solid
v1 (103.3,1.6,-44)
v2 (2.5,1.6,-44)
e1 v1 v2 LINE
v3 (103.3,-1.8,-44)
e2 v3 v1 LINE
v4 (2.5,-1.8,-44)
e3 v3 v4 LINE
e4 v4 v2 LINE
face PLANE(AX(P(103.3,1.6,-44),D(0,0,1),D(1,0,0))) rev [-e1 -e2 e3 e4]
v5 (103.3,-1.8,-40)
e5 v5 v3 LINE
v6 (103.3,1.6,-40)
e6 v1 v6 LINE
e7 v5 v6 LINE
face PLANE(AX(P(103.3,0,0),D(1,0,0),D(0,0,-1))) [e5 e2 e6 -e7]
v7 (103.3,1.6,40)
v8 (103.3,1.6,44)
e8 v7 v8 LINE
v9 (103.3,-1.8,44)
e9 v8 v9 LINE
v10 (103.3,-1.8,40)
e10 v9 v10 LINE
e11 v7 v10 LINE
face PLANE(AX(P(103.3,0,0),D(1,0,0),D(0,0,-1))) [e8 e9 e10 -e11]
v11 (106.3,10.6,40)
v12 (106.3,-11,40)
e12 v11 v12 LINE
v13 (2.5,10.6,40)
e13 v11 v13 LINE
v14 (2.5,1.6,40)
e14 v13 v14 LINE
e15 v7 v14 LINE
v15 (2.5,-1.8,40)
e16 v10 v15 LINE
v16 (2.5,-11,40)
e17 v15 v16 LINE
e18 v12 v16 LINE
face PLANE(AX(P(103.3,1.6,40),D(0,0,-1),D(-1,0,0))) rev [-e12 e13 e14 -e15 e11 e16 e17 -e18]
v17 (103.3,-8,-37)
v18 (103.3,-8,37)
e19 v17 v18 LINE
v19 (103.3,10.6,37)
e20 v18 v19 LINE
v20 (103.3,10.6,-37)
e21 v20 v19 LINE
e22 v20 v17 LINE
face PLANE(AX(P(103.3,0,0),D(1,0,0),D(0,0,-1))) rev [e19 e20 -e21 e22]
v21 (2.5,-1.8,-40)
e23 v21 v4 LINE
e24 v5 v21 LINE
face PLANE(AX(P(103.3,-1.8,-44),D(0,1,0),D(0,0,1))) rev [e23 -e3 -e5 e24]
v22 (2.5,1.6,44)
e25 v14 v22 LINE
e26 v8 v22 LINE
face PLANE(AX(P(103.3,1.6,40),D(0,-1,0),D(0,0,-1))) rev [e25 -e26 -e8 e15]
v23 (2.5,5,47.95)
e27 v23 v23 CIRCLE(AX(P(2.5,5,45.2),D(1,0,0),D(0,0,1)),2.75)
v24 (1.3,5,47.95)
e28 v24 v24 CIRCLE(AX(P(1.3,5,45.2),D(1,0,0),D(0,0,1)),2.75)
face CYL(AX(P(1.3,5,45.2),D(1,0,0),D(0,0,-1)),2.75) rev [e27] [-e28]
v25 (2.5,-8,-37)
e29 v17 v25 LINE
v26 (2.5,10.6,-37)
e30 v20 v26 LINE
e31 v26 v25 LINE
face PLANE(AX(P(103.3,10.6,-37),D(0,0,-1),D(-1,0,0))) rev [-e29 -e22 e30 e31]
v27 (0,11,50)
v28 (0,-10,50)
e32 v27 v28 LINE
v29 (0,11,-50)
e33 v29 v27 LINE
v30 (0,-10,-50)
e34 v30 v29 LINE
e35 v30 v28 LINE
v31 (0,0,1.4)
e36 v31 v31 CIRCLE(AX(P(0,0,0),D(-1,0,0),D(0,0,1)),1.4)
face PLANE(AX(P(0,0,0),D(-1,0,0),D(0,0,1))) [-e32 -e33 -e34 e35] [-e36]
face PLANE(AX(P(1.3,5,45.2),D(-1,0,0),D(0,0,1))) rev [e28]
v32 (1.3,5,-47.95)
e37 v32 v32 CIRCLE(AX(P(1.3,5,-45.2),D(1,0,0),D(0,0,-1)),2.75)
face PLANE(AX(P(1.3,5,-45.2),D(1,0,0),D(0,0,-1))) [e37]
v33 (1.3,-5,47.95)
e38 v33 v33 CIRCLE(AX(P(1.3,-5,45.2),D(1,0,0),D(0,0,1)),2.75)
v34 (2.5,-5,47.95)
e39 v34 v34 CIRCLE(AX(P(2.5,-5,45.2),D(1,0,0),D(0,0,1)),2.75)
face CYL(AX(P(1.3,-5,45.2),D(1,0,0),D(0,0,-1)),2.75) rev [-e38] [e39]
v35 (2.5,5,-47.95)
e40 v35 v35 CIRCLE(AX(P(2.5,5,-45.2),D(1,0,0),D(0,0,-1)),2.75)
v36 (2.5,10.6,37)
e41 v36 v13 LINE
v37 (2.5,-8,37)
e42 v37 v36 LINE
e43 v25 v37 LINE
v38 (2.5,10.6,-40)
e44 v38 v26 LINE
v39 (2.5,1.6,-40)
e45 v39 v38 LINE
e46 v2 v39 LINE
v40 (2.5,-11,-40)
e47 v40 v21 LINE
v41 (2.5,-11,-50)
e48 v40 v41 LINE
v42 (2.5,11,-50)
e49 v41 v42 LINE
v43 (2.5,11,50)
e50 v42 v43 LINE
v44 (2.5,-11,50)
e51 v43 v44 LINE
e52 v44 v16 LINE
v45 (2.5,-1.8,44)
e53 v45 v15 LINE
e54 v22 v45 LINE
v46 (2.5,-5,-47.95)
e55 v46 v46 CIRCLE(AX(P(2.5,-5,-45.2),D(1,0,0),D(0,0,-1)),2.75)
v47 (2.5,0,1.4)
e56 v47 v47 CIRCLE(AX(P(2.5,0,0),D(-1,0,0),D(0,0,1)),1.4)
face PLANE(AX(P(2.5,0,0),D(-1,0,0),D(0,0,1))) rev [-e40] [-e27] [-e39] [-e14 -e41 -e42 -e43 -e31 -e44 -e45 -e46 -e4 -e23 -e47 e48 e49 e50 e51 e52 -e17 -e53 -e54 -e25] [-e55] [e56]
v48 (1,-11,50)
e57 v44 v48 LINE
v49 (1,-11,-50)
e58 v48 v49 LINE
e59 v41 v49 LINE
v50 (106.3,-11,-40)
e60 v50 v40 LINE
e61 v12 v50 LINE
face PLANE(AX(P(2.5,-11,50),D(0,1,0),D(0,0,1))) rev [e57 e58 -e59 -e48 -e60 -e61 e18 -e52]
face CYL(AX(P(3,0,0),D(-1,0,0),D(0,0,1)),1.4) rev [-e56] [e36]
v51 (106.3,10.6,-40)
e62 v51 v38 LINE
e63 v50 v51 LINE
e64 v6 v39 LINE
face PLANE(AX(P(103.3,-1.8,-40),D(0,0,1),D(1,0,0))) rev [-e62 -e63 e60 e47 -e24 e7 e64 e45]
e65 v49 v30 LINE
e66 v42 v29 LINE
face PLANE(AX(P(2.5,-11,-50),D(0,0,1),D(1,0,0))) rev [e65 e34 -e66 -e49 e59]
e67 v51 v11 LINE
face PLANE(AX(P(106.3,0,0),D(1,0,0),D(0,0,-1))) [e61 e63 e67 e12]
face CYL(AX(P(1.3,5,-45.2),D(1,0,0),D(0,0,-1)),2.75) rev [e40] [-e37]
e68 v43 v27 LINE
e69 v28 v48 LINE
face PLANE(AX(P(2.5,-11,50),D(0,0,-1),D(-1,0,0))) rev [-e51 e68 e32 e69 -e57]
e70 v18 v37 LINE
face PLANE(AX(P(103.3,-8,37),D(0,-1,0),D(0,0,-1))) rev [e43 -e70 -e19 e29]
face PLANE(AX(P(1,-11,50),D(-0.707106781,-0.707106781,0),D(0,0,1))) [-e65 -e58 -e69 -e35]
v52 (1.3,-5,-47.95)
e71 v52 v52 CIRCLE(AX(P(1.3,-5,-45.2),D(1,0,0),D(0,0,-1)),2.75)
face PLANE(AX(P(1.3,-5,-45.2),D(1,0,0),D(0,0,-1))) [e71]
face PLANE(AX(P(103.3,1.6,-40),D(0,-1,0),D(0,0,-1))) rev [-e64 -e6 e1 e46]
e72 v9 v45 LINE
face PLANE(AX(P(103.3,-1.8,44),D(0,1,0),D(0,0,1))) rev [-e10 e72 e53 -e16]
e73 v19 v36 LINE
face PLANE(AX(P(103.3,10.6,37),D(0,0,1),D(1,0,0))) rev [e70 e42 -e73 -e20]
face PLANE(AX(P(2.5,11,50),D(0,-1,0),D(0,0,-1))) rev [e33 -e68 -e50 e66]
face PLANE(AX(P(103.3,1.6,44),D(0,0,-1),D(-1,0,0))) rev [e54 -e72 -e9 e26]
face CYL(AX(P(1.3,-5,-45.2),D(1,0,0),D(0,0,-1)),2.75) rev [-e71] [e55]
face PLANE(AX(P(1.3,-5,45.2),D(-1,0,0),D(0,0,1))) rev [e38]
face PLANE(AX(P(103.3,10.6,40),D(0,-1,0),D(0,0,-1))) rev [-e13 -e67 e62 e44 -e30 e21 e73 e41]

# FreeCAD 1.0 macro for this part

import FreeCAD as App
import Part
import Sketcher
Q = App.Units.Quantity


def edges_at(feature, points):
    """Names of the edges that pass closest to the given points."""
    edges = feature.Shape.Edges
    near = lambda p: min(range(len(edges)), key=lambda i: edges[i].distToShape(Part.Vertex(*p))[0])
    return sorted({f"Edge{near(p) + 1}" for p in points})


def add_polygon(sketch, points):
    """Adds a closed chain of lines whose ends are joined by coincident constraints."""
    first, n = sketch.GeometryCount, len(points)
    for a, b in zip(points, points[1:] + points[:1]):
        sketch.addGeometry(Part.LineSegment(App.Vector(*a, 0), App.Vector(*b, 0)), False)
    for i in range(n):
        sketch.addConstraint(Sketcher.Constraint("Coincident", first + i, 2, first + (i + 1) % n, 1))

doc = App.newDocument("Part")
body = doc.addObject("PartDesign::Body", "Body")

sketch1 = body.newObject("Sketcher::SketchObject", "Sketch")
sketch1.AttachmentSupport = (doc.getObject("YZ_Plane"), [""])
sketch1.MapMode = "FlatFace"
add_polygon(sketch1, [(11, 50), (-11, 50), (-11, -50), (11, -50)])
sketch1.addConstraint([
    Sketcher.Constraint("Horizontal", 0),
    Sketcher.Constraint("Vertical", 1),
    Sketcher.Constraint("Horizontal", 2),
    Sketcher.Constraint("Vertical", 3),
    Sketcher.Constraint("Symmetric", 0, 2, 2, 2, -1, 1),
    Sketcher.Constraint("DistanceX", 0, 2, 0, 1, Q("22 mm")),
    Sketcher.Constraint("DistanceY", 1, 2, 1, 1, Q("100 mm")),
])
pad1 = body.newObject("PartDesign::Pad", "Pad")
pad1.Profile = sketch1
pad1.Length = 2.5

sketch2 = body.newObject("Sketcher::SketchObject", "Sketch001")
sketch2.AttachmentSupport = (doc.getObject("YZ_Plane"), [""])
sketch2.MapMode = "FlatFace"
sketch2.AttachmentOffset = App.Placement(App.Vector(0, 0, 2.5), App.Rotation())
sketch2.addGeometry([
    Part.Circle(App.Vector(5, -45.2, 0), App.Vector(0, 0, 1), 2.75),
    Part.Circle(App.Vector(-5, -45.2, 0), App.Vector(0, 0, 1), 2.75),
    Part.Circle(App.Vector(5, 45.2, 0), App.Vector(0, 0, 1), 2.75),
    Part.Circle(App.Vector(-5, 45.2, 0), App.Vector(0, 0, 1), 2.75),
], False)
sketch2.addConstraint([
    Sketcher.Constraint("Equal", 0, 1),
    Sketcher.Constraint("Equal", 1, 2),
    Sketcher.Constraint("Equal", 2, 3),
    Sketcher.Constraint("Symmetric", 1, 3, 2, 3, -1, 1),
    Sketcher.Constraint("Symmetric", 0, 3, 3, 3, -1, 1),
    Sketcher.Constraint("Symmetric", 0, 3, 1, 3, -2),
    Sketcher.Constraint("Diameter", 0, Q("5.5 mm")),
    Sketcher.Constraint("DistanceX", -1, 1, 0, 3, Q("5 mm")),
    Sketcher.Constraint("DistanceY", 0, 3, -1, 1, Q("45.2 mm")),
])
pocket1 = body.newObject("PartDesign::Pocket", "Pocket")
pocket1.Profile = sketch2
pocket1.Length = 1.2

sketch3 = body.newObject("Sketcher::SketchObject", "Sketch002")
sketch3.AttachmentSupport = (doc.getObject("YZ_Plane"), [""])
sketch3.MapMode = "FlatFace"
sketch3.AttachmentOffset = App.Placement(App.Vector(0, 0, 2.5), App.Rotation())
add_polygon(sketch3, [(-11, 40), (-11, -40), (-1.8, -40), (-1.8, -44), (1.6, -44), (1.6, -40), (10.6, -40), (10.6, -37), (-8, -37), (-8, 37), (10.6, 37), (10.6, 40), (1.6, 40), (1.6, 44), (-1.8, 44), (-1.8, 40)])
sketch3.addConstraint([
    Sketcher.Constraint("Vertical", 0),
    Sketcher.Constraint("Horizontal", 1),
    Sketcher.Constraint("Vertical", 2),
    Sketcher.Constraint("Horizontal", 3),
    Sketcher.Constraint("Vertical", 4),
    Sketcher.Constraint("Horizontal", 5),
    Sketcher.Constraint("Vertical", 6),
    Sketcher.Constraint("Horizontal", 7),
    Sketcher.Constraint("Vertical", 8),
    Sketcher.Constraint("Horizontal", 9),
    Sketcher.Constraint("Vertical", 10),
    Sketcher.Constraint("Horizontal", 11),
    Sketcher.Constraint("Vertical", 12),
    Sketcher.Constraint("Horizontal", 13),
    Sketcher.Constraint("Vertical", 14),
    Sketcher.Constraint("Horizontal", 15),
    Sketcher.Constraint("Symmetric", 6, 2, 9, 2, -1),
    Sketcher.Constraint("Symmetric", 4, 2, 11, 2, -1),
    Sketcher.Constraint("Symmetric", 2, 2, 13, 2, -1),
    Sketcher.Constraint("Horizontal", 1, 2, 4, 2),
    Sketcher.Constraint("Horizontal", 11, 2, 14, 2),
    Sketcher.Constraint("DistanceX", 5, 1, 5, 2, Q("9 mm")),
    Sketcher.Constraint("DistanceY", 0, 2, 0, 1, Q("80 mm")),
    Sketcher.Constraint("DistanceY", 2, 2, 2, 1, Q("4 mm")),
    Sketcher.Constraint("DistanceY", 6, 1, 6, 2, Q("3 mm")),
    Sketcher.Constraint("DistanceX", 1, 1, 1, 2, Q("9.2 mm")),
    Sketcher.Constraint("DistanceX", 3, 1, 3, 2, Q("3.4 mm")),
    Sketcher.Constraint("DistanceX", 7, 2, 7, 1, Q("18.6 mm")),
    Sketcher.Constraint("DistanceX", 0, 2, -1, 1, Q("11 mm")),
])
pad2 = body.newObject("PartDesign::Pad", "Pad001")
pad2.Profile = sketch3
pad2.Length = 100.8

sketch4 = body.newObject("Sketcher::SketchObject", "Sketch003")
sketch4.AttachmentSupport = (doc.getObject("YZ_Plane"), [""])
sketch4.MapMode = "FlatFace"
sketch4.AttachmentOffset = App.Placement(App.Vector(0, 0, 103.3), App.Rotation())
add_polygon(sketch4, [(10.6, 40), (-11, 40), (-11, -40), (10.6, -40)])
sketch4.addConstraint([
    Sketcher.Constraint("Horizontal", 0),
    Sketcher.Constraint("Vertical", 1),
    Sketcher.Constraint("Horizontal", 2),
    Sketcher.Constraint("Vertical", 3),
    Sketcher.Constraint("DistanceY", 1, 2, 1, 1, Q("80 mm")),
    Sketcher.Constraint("DistanceX", 0, 2, 0, 1, Q("21.6 mm")),
    Sketcher.Constraint("DistanceX", 0, 2, -1, 1, Q("11 mm")),
    Sketcher.Constraint("DistanceY", -1, 1, 0, 2, Q("40 mm")),
])
pad3 = body.newObject("PartDesign::Pad", "Pad002")
pad3.Profile = sketch4
pad3.Length = 3

sketch5 = body.newObject("Sketcher::SketchObject", "Sketch004")
sketch5.AttachmentSupport = (doc.getObject("YZ_Plane"), [""])
sketch5.MapMode = "FlatFace"
sketch5.addGeometry(Part.Circle(App.Vector(0, 0, 0), App.Vector(0, 0, 1), 1.4), False)
sketch5.addConstraint([
    Sketcher.Constraint("Coincident", 0, 3, -1, 1),
    Sketcher.Constraint("Diameter", 0, Q("2.8 mm")),
])
pocket2 = body.newObject("PartDesign::Pocket", "Pocket001")
pocket2.Profile = sketch5
pocket2.Length = 3
pocket2.Reversed = True
doc.recompute()

chamfer = body.newObject("PartDesign::Chamfer", "Chamfer")
chamfer.Base = (pocket2, edges_at(pocket2, [(0, -11, 0)]))
chamfer.Size = 1

doc.recompute()
